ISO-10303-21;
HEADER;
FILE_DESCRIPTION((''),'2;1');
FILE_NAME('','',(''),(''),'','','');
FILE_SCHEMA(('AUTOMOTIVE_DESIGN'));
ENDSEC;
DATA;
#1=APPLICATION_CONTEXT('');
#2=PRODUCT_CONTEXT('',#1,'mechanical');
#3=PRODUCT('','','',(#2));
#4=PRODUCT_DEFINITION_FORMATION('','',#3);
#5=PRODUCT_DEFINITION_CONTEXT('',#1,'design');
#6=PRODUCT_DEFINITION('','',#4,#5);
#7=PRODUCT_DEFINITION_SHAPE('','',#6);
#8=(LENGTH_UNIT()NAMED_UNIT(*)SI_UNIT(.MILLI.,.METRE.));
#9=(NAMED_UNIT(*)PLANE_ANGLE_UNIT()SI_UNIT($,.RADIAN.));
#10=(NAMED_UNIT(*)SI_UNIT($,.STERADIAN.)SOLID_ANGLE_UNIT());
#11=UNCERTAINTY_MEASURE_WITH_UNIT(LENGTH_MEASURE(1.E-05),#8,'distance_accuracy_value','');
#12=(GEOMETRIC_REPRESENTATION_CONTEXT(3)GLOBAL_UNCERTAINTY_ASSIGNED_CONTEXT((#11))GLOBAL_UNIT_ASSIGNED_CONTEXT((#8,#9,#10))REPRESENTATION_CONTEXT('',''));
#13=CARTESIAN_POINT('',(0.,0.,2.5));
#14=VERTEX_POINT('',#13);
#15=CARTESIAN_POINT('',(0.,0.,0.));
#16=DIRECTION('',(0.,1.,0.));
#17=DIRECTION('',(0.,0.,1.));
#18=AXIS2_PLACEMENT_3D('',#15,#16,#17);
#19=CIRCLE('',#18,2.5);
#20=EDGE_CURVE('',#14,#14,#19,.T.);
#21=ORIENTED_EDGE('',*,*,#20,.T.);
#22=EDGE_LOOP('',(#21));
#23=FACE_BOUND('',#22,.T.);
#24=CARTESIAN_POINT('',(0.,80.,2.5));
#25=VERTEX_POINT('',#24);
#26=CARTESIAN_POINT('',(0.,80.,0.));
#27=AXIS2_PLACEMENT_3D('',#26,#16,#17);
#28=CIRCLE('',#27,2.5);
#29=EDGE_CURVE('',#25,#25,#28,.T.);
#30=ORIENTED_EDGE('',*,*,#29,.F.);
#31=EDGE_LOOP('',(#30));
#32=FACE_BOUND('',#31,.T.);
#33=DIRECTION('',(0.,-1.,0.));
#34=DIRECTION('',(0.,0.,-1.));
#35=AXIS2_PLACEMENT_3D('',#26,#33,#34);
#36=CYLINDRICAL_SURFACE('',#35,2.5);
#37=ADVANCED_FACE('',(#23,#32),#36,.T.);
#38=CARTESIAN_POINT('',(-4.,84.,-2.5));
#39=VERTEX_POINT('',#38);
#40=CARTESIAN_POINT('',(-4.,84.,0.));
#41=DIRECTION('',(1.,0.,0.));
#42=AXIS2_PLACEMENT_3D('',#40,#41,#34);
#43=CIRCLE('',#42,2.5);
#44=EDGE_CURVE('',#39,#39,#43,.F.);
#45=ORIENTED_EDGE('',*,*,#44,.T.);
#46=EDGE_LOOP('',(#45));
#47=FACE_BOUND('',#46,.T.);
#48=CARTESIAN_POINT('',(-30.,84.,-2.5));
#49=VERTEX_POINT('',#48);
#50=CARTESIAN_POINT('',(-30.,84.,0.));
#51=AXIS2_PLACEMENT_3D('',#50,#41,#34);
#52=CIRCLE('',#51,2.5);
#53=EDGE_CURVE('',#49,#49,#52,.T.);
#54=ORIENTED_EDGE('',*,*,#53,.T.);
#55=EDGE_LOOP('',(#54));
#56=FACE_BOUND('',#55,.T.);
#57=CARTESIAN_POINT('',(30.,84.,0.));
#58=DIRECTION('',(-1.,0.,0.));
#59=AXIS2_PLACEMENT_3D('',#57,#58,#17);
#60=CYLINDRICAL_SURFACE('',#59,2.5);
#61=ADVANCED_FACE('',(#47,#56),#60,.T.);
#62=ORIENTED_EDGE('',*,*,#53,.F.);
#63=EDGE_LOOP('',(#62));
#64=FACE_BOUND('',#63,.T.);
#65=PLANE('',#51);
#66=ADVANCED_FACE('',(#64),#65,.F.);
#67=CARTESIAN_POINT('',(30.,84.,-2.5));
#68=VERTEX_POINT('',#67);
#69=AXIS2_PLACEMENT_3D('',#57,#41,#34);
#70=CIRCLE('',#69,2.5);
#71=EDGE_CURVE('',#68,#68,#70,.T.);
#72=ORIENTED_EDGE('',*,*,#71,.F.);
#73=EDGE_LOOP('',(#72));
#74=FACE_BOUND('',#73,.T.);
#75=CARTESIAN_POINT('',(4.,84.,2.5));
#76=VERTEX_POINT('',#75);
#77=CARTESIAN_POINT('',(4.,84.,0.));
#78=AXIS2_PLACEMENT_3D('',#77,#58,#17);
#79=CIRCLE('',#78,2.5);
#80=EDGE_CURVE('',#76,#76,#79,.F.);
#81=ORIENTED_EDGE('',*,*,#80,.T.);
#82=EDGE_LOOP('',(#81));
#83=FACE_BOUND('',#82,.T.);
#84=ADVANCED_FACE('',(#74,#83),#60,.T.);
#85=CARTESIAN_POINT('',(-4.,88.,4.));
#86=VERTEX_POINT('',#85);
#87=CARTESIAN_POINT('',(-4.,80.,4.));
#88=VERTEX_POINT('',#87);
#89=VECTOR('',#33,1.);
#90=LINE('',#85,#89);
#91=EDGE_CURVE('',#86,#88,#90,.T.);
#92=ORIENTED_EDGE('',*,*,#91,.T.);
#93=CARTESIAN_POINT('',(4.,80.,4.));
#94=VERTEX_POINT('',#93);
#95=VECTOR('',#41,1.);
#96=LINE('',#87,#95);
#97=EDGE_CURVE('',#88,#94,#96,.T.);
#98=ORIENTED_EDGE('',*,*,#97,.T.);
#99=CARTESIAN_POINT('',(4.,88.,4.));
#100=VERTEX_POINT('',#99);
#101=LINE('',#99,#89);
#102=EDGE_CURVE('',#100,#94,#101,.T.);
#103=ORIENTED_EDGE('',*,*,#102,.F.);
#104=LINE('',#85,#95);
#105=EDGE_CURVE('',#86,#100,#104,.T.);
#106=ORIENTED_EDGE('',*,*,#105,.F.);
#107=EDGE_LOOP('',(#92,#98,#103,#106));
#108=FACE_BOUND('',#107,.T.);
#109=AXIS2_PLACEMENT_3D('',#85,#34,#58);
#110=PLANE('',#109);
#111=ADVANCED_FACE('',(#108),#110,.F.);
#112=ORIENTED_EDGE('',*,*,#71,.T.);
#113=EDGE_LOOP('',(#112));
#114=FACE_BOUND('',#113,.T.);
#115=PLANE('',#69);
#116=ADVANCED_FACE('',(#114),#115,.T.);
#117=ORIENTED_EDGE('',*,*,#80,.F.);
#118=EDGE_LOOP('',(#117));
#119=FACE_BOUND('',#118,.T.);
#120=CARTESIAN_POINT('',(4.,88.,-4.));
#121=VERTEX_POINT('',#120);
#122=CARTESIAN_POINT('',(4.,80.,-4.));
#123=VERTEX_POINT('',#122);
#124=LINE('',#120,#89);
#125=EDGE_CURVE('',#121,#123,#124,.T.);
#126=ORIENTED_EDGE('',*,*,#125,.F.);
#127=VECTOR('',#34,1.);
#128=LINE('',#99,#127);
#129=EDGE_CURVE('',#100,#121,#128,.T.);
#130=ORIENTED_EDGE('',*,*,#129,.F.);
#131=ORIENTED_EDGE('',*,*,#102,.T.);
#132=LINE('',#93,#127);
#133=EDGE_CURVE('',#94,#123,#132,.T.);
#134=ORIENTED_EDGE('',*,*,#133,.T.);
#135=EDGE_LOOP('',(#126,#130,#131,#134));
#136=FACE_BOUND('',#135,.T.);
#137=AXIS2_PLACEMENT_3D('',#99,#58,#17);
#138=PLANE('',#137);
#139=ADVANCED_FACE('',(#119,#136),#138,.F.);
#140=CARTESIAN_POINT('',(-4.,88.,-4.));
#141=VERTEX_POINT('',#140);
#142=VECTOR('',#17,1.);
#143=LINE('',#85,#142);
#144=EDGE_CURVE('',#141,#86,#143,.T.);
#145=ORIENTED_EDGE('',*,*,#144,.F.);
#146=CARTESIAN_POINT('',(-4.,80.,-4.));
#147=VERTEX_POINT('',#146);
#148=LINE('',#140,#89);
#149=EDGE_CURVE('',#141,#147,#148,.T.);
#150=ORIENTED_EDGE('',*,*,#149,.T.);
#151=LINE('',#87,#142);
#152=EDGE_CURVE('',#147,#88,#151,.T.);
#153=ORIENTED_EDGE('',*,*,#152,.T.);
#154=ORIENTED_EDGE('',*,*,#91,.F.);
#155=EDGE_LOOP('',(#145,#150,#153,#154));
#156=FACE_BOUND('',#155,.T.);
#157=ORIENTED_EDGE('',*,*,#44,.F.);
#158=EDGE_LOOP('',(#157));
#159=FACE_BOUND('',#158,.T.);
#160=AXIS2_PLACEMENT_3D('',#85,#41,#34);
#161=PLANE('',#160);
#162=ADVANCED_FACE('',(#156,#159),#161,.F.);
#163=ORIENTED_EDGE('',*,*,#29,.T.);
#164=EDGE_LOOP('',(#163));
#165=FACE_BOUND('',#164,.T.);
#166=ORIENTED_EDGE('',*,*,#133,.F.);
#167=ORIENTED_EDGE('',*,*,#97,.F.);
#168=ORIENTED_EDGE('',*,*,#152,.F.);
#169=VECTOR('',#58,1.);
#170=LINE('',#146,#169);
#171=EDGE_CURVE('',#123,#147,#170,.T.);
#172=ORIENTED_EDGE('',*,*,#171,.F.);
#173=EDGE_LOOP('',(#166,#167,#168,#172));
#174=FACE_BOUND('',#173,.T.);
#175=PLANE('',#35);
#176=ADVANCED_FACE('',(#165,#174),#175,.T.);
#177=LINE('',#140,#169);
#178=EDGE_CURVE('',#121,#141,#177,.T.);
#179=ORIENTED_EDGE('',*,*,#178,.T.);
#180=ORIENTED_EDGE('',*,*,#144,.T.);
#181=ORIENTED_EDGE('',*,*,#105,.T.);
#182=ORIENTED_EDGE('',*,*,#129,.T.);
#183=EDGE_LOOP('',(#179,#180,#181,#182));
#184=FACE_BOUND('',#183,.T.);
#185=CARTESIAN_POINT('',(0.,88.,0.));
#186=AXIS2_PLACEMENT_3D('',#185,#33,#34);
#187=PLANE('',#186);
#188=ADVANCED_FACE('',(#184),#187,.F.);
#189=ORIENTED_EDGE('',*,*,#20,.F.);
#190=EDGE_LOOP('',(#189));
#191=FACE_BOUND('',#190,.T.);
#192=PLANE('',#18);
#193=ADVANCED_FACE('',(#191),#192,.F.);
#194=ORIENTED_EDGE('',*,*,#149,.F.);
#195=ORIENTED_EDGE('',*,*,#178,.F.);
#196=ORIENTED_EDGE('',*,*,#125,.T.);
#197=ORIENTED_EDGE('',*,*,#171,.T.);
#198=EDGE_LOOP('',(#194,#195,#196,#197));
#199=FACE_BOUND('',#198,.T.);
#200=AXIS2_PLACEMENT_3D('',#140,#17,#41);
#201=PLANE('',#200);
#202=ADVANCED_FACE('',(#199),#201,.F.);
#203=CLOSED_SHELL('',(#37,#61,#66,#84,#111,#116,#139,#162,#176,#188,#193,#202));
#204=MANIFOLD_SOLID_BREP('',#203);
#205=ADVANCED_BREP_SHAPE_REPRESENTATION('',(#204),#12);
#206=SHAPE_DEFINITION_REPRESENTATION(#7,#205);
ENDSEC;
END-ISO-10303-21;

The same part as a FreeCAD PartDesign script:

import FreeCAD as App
import Part
import Sketcher

V = App.Vector

doc = App.newDocument("Part")
body = doc.addObject("PartDesign::Body", "Body")

sketch1 = doc.addObject("Sketcher::SketchObject", "Sketch")
body.addObject(sketch1)
sketch1.AttachmentSupport = (doc.XZ_Plane, [""])
sketch1.MapMode = "FlatFace"
sketch1.addGeometry(Part.Circle(V(0, 0, 0), V(0, 0, 1), 2.5), False)
sketch1.addConstraint(Sketcher.Constraint("Coincident", 0, 3, -1, 1))
sketch1.addConstraint(Sketcher.Constraint("Diameter", 0, 5.0))
pad1 = doc.addObject("PartDesign::Pad", "Pad")
body.addObject(pad1)
pad1.Profile = sketch1
pad1.Length = 80
pad1.Reversed = True

sketch2 = doc.addObject("Sketcher::SketchObject", "Sketch001")
body.addObject(sketch2)
sketch2.AttachmentSupport = (doc.XZ_Plane, [""])
sketch2.MapMode = "FlatFace"
sketch2.AttachmentOffset = App.Placement(V(0, 0, -80), App.Rotation())
sketch2.addGeometry(Part.LineSegment(V(-4, -4, 0), V(-4, 4, 0)), False)
sketch2.addGeometry(Part.LineSegment(V(-4, 4, 0), V(4, 4, 0)), False)
sketch2.addGeometry(Part.LineSegment(V(4, 4, 0), V(4, -4, 0)), False)
sketch2.addGeometry(Part.LineSegment(V(4, -4, 0), V(-4, -4, 0)), False)
sketch2.addConstraint(Sketcher.Constraint("Coincident", 0, 2, 1, 1))
sketch2.addConstraint(Sketcher.Constraint("Coincident", 1, 2, 2, 1))
sketch2.addConstraint(Sketcher.Constraint("Coincident", 2, 2, 3, 1))
sketch2.addConstraint(Sketcher.Constraint("Coincident", 3, 2, 0, 1))
sketch2.addConstraint(Sketcher.Constraint("Vertical", 0))
sketch2.addConstraint(Sketcher.Constraint("Horizontal", 1))
sketch2.addConstraint(Sketcher.Constraint("Vertical", 2))
sketch2.addConstraint(Sketcher.Constraint("Horizontal", 3))
sketch2.addConstraint(Sketcher.Constraint("Symmetric", 0, 2, 2, 2, -1, 1))
sketch2.addConstraint(Sketcher.Constraint("Equal", 3, 0))
sketch2.addConstraint(Sketcher.Constraint("DistanceX", 1, 1, 1, 2, 8.0))
pad2 = doc.addObject("PartDesign::Pad", "Pad001")
body.addObject(pad2)
pad2.Profile = sketch2
pad2.Length = 8
pad2.Reversed = True

sketch3 = doc.addObject("Sketcher::SketchObject", "Sketch002")
body.addObject(sketch3)
sketch3.AttachmentSupport = (doc.YZ_Plane, [""])
sketch3.MapMode = "FlatFace"
sketch3.addGeometry(Part.Circle(V(84, 0, 0), V(0, 0, 1), 2.5), False)
sketch3.addConstraint(Sketcher.Constraint("PointOnObject", 0, 3, -1))
sketch3.addConstraint(Sketcher.Constraint("Diameter", 0, 5.0))
sketch3.addConstraint(Sketcher.Constraint("DistanceX", -1, 1, 0, 3, 84.0))
pad3 = doc.addObject("PartDesign::Pad", "Pad002")
body.addObject(pad3)
pad3.Profile = sketch3
pad3.Length = 60
pad3.Midplane = True

doc.recompute()
